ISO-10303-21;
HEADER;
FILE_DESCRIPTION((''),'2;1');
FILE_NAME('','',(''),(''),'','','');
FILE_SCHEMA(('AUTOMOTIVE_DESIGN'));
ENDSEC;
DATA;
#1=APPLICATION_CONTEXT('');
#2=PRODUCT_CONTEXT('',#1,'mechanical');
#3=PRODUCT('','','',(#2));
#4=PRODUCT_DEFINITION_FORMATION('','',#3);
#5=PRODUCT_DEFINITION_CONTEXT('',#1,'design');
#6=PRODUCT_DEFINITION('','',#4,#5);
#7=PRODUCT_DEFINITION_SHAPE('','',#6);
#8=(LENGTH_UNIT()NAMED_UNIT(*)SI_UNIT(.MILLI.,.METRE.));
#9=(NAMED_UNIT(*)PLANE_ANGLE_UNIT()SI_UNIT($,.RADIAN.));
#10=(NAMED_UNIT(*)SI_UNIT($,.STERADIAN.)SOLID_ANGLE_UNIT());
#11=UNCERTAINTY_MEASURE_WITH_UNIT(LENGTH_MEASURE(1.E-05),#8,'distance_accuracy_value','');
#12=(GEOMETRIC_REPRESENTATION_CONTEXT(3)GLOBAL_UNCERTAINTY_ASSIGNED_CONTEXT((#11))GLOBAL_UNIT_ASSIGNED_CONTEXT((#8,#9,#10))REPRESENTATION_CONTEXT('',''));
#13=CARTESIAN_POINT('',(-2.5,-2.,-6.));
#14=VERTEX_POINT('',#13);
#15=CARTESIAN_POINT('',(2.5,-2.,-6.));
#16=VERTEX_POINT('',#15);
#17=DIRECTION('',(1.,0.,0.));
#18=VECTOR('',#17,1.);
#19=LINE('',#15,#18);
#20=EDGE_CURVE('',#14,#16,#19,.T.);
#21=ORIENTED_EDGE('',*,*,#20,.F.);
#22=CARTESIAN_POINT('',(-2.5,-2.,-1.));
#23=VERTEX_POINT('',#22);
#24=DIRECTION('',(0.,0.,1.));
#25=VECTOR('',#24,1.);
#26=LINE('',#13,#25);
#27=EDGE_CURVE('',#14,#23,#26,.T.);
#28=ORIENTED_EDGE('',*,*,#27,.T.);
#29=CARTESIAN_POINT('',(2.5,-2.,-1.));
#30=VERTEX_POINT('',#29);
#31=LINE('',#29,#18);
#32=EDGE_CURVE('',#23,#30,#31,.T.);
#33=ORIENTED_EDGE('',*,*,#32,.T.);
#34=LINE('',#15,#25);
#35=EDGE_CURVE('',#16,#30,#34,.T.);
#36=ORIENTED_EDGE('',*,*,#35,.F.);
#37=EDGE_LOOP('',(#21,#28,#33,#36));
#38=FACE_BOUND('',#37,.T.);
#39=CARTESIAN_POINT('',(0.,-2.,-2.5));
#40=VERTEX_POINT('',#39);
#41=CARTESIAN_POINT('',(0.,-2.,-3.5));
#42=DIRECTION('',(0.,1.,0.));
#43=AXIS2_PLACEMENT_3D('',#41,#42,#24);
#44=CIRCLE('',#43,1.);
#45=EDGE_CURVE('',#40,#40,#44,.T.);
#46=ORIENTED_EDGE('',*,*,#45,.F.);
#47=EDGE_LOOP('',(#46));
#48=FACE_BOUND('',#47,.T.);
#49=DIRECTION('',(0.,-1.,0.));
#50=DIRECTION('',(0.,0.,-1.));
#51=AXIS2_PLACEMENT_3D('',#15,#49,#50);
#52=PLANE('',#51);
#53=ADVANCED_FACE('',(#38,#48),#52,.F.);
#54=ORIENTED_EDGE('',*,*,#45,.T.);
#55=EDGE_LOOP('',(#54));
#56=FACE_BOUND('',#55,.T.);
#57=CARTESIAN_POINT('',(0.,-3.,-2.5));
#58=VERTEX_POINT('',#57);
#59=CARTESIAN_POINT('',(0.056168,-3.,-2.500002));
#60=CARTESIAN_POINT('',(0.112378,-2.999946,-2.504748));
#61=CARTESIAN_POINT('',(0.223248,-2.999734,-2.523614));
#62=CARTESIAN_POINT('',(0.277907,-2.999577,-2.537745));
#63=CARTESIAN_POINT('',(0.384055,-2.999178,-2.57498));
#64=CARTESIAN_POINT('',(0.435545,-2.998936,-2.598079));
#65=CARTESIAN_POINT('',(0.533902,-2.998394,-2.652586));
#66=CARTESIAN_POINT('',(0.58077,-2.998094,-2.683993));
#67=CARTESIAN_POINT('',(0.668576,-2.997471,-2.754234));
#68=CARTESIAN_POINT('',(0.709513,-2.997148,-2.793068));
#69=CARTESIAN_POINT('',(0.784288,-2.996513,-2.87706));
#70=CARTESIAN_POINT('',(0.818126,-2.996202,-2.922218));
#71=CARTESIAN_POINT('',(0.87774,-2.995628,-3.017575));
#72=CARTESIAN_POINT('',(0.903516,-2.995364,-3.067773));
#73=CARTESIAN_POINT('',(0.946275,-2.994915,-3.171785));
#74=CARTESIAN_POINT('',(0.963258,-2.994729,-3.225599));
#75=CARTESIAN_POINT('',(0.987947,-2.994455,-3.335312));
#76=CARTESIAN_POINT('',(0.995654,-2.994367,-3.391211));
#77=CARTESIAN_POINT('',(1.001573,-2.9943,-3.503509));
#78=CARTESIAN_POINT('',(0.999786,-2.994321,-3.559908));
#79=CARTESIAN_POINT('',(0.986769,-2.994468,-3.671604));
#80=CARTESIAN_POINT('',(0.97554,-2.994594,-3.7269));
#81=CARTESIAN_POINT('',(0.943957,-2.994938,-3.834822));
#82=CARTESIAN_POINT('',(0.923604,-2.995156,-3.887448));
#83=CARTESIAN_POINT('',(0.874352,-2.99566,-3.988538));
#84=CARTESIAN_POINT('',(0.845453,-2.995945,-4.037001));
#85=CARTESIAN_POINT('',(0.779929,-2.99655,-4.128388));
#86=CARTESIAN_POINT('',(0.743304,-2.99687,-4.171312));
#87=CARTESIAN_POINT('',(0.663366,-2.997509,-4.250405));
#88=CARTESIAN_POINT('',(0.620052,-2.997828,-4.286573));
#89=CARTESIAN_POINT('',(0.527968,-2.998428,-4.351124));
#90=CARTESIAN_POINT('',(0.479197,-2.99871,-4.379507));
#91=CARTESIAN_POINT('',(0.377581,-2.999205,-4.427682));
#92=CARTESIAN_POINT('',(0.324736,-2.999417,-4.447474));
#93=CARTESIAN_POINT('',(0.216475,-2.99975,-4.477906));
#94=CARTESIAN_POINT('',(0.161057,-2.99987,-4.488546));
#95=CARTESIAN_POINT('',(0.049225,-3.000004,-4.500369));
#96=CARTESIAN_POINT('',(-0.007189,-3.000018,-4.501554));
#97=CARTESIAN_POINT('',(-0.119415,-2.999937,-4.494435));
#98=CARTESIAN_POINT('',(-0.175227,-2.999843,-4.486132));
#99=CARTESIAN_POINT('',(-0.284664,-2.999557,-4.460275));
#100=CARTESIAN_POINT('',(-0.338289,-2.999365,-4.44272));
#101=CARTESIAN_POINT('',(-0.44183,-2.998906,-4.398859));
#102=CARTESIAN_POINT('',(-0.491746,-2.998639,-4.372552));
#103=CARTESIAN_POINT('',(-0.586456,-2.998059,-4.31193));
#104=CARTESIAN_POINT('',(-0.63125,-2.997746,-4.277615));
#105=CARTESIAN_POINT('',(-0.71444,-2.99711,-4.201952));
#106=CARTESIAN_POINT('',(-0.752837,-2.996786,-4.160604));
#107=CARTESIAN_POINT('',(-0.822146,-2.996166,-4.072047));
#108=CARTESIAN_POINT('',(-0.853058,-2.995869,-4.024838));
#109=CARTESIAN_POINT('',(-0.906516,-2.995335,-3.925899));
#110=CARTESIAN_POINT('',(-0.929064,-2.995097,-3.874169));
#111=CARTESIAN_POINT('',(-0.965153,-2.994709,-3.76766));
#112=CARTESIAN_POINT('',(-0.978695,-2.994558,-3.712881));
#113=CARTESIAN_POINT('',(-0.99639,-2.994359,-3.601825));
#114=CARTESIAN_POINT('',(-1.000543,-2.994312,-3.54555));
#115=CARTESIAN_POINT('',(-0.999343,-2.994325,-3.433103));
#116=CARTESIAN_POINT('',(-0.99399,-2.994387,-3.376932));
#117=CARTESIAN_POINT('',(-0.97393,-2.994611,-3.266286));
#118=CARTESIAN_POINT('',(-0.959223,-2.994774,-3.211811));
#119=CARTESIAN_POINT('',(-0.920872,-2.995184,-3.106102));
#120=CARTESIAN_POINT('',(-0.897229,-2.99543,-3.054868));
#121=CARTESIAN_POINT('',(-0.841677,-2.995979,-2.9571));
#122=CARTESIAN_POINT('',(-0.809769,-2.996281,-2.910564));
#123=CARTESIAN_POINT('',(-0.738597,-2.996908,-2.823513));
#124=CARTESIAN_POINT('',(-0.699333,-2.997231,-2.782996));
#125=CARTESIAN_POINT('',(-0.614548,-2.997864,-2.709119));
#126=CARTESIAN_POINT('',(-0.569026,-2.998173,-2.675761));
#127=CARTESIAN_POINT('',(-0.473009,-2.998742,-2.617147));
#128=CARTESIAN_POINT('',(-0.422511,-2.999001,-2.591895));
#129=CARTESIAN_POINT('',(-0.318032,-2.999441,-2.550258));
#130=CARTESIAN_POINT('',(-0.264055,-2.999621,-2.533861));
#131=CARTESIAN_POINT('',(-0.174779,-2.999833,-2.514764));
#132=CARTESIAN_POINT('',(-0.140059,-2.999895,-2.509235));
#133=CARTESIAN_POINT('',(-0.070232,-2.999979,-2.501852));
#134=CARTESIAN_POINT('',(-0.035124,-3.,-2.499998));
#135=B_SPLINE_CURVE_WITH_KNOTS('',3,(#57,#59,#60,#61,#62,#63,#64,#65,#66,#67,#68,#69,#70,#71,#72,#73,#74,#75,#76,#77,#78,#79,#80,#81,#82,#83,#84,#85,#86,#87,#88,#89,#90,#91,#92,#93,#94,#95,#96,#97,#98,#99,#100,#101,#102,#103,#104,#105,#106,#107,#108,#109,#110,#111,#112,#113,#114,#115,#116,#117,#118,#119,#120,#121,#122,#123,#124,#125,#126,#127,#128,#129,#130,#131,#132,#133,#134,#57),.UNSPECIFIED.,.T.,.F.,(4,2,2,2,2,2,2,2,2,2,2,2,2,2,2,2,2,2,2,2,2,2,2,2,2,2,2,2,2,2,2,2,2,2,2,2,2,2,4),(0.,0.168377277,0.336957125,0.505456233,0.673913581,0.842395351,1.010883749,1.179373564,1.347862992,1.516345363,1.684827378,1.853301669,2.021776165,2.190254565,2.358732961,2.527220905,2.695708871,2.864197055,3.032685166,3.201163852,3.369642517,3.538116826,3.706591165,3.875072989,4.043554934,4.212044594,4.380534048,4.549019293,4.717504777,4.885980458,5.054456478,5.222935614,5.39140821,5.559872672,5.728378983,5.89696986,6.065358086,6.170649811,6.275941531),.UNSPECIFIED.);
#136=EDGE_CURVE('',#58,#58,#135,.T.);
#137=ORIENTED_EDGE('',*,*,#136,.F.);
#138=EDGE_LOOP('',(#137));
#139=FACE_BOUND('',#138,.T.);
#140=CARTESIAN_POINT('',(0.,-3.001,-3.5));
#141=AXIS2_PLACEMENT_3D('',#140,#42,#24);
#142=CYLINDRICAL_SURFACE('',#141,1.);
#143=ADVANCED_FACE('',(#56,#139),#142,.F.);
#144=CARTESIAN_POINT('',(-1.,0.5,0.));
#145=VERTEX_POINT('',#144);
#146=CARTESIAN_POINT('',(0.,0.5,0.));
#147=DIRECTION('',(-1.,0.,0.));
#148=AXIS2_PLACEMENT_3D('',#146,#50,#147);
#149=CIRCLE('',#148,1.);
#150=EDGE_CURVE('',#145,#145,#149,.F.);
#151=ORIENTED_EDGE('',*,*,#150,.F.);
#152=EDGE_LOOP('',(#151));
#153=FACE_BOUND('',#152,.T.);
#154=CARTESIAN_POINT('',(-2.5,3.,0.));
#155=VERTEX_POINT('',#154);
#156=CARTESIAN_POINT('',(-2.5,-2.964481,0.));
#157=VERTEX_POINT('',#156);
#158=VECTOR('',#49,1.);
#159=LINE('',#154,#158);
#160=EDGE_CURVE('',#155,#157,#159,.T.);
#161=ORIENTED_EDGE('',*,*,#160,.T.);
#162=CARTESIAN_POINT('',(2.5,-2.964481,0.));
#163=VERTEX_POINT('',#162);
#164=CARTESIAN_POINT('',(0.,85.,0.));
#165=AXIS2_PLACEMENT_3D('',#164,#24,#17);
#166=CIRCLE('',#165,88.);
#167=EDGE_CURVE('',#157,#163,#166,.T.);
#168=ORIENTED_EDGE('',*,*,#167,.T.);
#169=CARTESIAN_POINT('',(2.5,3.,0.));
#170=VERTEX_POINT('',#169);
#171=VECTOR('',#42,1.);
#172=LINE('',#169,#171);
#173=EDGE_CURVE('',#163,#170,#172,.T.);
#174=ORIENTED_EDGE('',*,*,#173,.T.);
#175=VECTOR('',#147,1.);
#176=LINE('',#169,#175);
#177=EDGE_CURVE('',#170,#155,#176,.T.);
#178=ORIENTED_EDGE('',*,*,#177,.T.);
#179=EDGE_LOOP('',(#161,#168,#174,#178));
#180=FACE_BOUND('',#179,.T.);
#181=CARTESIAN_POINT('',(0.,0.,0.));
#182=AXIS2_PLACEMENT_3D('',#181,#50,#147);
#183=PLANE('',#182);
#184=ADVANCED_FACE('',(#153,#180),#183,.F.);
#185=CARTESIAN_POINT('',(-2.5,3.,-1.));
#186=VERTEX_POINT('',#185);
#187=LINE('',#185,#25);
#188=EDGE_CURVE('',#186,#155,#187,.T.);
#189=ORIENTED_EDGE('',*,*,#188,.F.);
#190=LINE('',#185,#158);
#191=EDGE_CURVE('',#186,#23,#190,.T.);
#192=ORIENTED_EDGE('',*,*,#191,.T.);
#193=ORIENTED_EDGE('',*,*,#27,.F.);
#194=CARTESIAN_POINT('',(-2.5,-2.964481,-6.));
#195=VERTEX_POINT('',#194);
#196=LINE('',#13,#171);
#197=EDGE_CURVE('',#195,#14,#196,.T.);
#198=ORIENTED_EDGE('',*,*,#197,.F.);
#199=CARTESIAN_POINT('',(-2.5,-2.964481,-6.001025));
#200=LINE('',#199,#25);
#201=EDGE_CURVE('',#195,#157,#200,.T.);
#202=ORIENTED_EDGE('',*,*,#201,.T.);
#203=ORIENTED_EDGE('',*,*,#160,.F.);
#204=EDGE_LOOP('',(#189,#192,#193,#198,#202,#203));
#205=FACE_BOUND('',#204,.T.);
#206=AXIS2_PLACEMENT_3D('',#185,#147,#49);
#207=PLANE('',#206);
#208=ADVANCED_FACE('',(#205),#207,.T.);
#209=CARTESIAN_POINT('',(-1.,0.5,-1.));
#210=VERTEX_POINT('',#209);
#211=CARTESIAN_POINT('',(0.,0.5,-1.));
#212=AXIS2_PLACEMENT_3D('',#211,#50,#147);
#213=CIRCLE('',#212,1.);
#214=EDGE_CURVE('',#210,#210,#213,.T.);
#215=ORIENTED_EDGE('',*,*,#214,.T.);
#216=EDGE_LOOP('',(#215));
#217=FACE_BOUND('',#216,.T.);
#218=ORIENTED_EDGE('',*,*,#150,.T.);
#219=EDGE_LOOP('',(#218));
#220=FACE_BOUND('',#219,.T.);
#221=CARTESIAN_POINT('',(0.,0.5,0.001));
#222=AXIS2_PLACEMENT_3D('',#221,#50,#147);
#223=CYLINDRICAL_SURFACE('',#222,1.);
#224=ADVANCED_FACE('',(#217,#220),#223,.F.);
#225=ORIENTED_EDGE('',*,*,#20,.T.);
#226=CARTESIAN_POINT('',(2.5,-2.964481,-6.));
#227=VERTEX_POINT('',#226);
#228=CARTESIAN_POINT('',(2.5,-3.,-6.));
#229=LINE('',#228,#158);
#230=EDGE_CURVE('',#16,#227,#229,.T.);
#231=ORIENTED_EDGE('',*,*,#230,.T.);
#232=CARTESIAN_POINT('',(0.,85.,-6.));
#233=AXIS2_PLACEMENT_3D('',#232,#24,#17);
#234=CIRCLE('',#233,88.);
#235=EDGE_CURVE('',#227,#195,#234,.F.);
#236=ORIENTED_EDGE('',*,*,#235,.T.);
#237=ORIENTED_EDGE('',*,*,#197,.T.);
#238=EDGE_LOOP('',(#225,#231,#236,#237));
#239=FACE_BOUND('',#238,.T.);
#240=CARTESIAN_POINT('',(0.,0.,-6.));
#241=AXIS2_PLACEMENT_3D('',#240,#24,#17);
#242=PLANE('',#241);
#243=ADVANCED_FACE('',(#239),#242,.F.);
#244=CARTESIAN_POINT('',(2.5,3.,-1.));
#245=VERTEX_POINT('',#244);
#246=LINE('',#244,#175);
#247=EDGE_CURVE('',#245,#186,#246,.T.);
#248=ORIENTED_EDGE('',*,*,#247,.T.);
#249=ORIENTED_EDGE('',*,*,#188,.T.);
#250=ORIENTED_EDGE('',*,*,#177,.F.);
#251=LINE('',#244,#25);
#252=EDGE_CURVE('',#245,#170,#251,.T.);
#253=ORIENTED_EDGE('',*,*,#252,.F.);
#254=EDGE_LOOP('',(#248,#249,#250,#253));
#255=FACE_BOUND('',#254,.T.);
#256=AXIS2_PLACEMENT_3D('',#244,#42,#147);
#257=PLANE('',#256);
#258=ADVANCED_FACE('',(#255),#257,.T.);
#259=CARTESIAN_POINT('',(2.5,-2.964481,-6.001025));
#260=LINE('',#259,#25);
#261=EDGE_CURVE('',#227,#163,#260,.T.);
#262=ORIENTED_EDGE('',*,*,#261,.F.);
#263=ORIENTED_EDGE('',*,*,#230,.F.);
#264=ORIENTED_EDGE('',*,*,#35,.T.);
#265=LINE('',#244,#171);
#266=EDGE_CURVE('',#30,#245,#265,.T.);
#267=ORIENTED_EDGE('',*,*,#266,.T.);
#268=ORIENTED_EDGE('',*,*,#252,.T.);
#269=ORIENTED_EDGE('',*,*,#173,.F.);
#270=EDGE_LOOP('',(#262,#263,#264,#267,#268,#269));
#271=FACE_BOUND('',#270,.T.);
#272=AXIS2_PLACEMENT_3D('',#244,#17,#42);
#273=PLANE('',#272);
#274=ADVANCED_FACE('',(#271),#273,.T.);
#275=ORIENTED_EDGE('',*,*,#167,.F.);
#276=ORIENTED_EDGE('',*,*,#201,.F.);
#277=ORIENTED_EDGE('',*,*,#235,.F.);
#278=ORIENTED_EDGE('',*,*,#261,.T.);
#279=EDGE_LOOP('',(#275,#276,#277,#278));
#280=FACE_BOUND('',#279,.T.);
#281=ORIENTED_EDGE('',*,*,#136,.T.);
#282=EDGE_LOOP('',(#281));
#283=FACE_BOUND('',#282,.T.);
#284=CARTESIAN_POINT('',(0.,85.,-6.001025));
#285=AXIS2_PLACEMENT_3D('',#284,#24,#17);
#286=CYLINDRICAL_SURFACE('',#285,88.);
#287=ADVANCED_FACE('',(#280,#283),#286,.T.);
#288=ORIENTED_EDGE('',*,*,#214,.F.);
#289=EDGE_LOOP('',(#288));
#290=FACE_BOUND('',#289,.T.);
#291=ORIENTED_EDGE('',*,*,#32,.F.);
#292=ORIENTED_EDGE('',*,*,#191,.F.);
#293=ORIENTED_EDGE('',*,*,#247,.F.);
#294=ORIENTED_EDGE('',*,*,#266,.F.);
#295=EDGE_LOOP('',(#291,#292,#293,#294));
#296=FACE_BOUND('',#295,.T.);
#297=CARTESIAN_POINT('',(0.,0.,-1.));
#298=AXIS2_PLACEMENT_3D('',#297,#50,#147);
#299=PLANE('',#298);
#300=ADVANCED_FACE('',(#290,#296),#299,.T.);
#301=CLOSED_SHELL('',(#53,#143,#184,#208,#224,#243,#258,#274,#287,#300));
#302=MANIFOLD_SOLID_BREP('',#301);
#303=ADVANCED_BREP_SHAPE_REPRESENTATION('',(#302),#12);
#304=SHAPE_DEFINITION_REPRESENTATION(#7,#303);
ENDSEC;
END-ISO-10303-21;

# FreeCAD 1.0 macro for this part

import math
import FreeCAD as App
import Part
import Sketcher


def add_polygon(sketch, points):
    """Adds a closed chain of lines whose ends are joined by coincident constraints."""
    first, n = sketch.GeometryCount, len(points)
    for a, b in zip(points, points[1:] + points[:1]):
        sketch.addGeometry(Part.LineSegment(App.Vector(*a, 0), App.Vector(*b, 0)), False)
    for i in range(n):
        sketch.addConstraint(Sketcher.Constraint("Coincident", first + i, 2, first + (i + 1) % n, 1))

doc = App.newDocument("Part")
body = doc.addObject("PartDesign::Body", "Body")

sketch1 = body.newObject("Sketcher::SketchObject", "Sketch")
sketch1.AttachmentSupport = (doc.getObject("XY_Plane"), [""])
sketch1.MapMode = "FlatFace"
add_polygon(sketch1, [(-2, 3), (-2, -3), (2, -3), (2, 3)])
sketch1.addConstraint([
    Sketcher.Constraint("Vertical", 0),
    Sketcher.Constraint("Horizontal", 1),
    Sketcher.Constraint("Vertical", 2),
    Sketcher.Constraint("Horizontal", 3),
    Sketcher.Constraint("Symmetric", 0, 2, 2, 2, -1, 1),
    Sketcher.Constraint("DistanceX", 1, 1, 1, 2, 5.0),
    Sketcher.Constraint("DistanceY", 0, 2, 0, 1, 6.0),
])
pad1 = body.newObject("PartDesign::Pad", "Pad")
pad1.Profile = sketch1
pad1.Length = 1
pad1.Reversed = True

sketch2 = body.newObject("Sketcher::SketchObject", "Sketch001")
sketch2.AttachmentSupport = (doc.getObject("XY_Plane"), [""])
sketch2.MapMode = "FlatFace"
sketch2.AttachmentOffset = App.Placement(App.Vector(0, 0, -1), App.Rotation())
add_polygon(sketch2, [(2.5, -2), (2.5, -3), (-2.5, -3), (-2.5, -2)])
sketch2.addConstraint([
    Sketcher.Constraint("Vertical", 0),
    Sketcher.Constraint("Horizontal", 1),
    Sketcher.Constraint("Vertical", 2),
    Sketcher.Constraint("Horizontal", 3),
    Sketcher.Constraint("DistanceX", 1, 2, 1, 1, 5.0),
    Sketcher.Constraint("DistanceY", 0, 2, 0, 1, 1.0),
    Sketcher.Constraint("DistanceY", 0, 2, -1, 1, 3.0),
    Sketcher.Constraint("DistanceX", -1, 1, 0, 2, 2.5),
])
pad2 = body.newObject("PartDesign::Pad", "Pad001")
pad2.Profile = sketch2
pad2.Length = 5
pad2.Reversed = True

sketch3 = body.newObject("Sketcher::SketchObject", "Sketch002")
sketch3.AttachmentSupport = (doc.getObject("XY_Plane"), [""])
sketch3.MapMode = "FlatFace"
sketch3.addGeometry([
    Part.ArcOfCircle(Part.Circle(App.Vector(0, 85, 0), App.Vector(0, 0, 1), 88), math.radians(-91.63), math.radians(-90)),
    Part.LineSegment(App.Vector(-2.5, -2.964, 0), App.Vector(-2.5, -3, 0)),
    Part.LineSegment(App.Vector(-2.5, -3, 0), App.Vector(0, -3, 0)),
], False)
sketch3.addConstraint([
    Sketcher.Constraint("Coincident", 0, 1, 1, 1),
    Sketcher.Constraint("Coincident", 1, 2, 2, 1),
    Sketcher.Constraint("Tangent", 2, 2, 0, 2),
    Sketcher.Constraint("Vertical", 1),
    Sketcher.Constraint("Horizontal", 2),
    Sketcher.Constraint("PointOnObject", 0, 3, -2),
    Sketcher.Constraint("DistanceX", 2, 1, 2, 2, 2.5),
    Sketcher.Constraint("DistanceY", 1, 2, -1, 1, 3.0),
    Sketcher.Constraint("Radius", 0, 88.000002),
])
pocket1 = body.newObject("PartDesign::Pocket", "Pocket")
pocket1.Profile = sketch3
pocket1.Type = "UpToFirst"

sketch4 = body.newObject("Sketcher::SketchObject", "Sketch003")
sketch4.AttachmentSupport = (doc.getObject("XY_Plane"), [""])
sketch4.MapMode = "FlatFace"
sketch4.addGeometry([
    Part.LineSegment(App.Vector(2.5, -3, 0), App.Vector(2.5, -2.964, 0)),
    Part.ArcOfCircle(Part.Circle(App.Vector(0, 85, 0), App.Vector(0, 0, 1), 88), math.radians(-90), math.radians(-88.37)),
    Part.LineSegment(App.Vector(0, -3, 0), App.Vector(2.5, -3, 0)),
], False)
sketch4.addConstraint([
    Sketcher.Constraint("Coincident", 0, 2, 1, 2),
    Sketcher.Constraint("Tangent", 1, 1, 2, 1),
    Sketcher.Constraint("Coincident", 2, 2, 0, 1),
    Sketcher.Constraint("Vertical", 0),
    Sketcher.Constraint("Horizontal", 2),
    Sketcher.Constraint("PointOnObject", 1, 3, -2),
    Sketcher.Constraint("DistanceX", 2, 1, 2, 2, 2.5),
    Sketcher.Constraint("DistanceY", 1, 1, -1, 1, 3.0),
    Sketcher.Constraint("Radius", 1, 87.999995),
])
pocket2 = body.newObject("PartDesign::Pocket", "Pocket001")
pocket2.Profile = sketch4
pocket2.Type = "UpToFirst"

sketch5 = body.newObject("Sketcher::SketchObject", "Sketch004")
sketch5.AttachmentSupport = (doc.getObject("XZ_Plane"), [""])
sketch5.MapMode = "FlatFace"
sketch5.AttachmentOffset = App.Placement(App.Vector(0, 0, 2), App.Rotation())
sketch5.addGeometry(Part.Circle(App.Vector(0, -3.5, 0), App.Vector(0, 0, 1), 1), False)
sketch5.addConstraint([
    Sketcher.Constraint("PointOnObject", 0, 3, -2),
    Sketcher.Constraint("Diameter", 0, 2.0),
    Sketcher.Constraint("DistanceY", 0, 3, -1, 1, 3.5),
])
pocket3 = body.newObject("PartDesign::Pocket", "Pocket002")
pocket3.Profile = sketch5
pocket3.Type = "UpToFirst"
pocket3.Reversed = True

sketch6 = body.newObject("Sketcher::SketchObject", "Sketch005")
sketch6.AttachmentSupport = (doc.getObject("XY_Plane"), [""])
sketch6.MapMode = "FlatFace"
sketch6.AttachmentOffset = App.Placement(App.Vector(0, 0, -1), App.Rotation())
sketch6.addGeometry(Part.Circle(App.Vector(0, 0.5, 0), App.Vector(0, 0, 1), 1), False)
sketch6.addConstraint([
    Sketcher.Constraint("PointOnObject", 0, 3, -2),
    Sketcher.Constraint("Diameter", 0, 2.0),
    Sketcher.Constraint("DistanceY", -1, 1, 0, 3, 0.5),
])
pocket4 = body.newObject("PartDesign::Pocket", "Pocket003")
pocket4.Profile = sketch6
pocket4.Type = "UpToFirst"
pocket4.Reversed = True

doc.recompute()
